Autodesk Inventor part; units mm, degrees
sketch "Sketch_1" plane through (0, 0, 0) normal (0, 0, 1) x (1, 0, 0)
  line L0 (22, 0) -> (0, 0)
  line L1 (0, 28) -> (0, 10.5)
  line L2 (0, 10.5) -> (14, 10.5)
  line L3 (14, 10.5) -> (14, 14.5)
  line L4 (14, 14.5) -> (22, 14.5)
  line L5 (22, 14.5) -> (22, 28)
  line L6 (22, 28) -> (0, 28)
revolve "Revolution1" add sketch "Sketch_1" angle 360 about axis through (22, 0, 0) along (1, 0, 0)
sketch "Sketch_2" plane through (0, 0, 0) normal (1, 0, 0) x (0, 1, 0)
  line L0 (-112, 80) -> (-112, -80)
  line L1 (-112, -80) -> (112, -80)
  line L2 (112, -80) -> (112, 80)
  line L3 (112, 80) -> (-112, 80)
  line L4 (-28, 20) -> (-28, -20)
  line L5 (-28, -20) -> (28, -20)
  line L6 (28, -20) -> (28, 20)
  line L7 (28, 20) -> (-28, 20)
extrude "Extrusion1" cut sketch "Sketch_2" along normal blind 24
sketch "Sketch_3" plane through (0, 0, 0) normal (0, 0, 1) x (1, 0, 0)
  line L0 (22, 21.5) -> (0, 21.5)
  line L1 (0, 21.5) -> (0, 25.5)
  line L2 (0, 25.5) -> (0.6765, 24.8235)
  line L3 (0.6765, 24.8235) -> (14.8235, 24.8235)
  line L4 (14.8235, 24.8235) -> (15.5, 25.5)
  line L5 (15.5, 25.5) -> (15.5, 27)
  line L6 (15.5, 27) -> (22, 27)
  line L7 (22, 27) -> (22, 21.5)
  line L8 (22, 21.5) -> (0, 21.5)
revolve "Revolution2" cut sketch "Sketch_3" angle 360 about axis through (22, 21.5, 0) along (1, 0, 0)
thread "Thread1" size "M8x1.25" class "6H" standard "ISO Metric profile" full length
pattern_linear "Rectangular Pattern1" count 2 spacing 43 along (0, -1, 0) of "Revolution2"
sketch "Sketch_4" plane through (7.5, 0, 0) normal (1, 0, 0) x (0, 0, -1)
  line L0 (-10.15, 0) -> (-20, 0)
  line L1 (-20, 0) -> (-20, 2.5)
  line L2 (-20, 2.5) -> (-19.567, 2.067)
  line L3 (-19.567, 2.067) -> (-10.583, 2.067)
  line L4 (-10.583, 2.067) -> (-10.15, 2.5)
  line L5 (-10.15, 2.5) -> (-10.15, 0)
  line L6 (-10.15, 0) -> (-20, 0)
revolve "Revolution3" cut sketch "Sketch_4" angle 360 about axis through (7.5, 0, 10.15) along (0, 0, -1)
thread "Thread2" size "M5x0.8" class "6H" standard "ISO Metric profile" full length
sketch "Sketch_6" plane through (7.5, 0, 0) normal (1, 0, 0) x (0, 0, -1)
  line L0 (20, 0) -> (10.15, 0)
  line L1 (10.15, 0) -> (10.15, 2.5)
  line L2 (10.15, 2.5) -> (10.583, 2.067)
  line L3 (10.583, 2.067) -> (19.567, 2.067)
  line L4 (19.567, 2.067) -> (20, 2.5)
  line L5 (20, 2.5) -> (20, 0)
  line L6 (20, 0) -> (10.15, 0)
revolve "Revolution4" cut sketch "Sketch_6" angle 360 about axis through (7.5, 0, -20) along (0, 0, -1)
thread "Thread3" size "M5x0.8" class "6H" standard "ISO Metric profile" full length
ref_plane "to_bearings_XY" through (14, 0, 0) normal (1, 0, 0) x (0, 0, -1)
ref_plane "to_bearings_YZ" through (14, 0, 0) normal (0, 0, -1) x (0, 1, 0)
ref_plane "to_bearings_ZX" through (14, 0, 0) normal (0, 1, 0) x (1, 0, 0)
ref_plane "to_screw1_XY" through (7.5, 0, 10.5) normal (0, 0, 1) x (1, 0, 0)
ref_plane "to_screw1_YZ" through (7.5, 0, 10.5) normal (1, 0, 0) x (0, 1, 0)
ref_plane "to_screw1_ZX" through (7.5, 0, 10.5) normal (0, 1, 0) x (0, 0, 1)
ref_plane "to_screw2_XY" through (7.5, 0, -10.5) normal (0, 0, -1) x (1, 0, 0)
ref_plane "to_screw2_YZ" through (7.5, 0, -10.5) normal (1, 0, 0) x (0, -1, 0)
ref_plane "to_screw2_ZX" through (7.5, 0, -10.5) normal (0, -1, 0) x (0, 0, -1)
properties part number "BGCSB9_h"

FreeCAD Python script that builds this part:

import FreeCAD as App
import Part
import Sketcher

V = App.Vector

doc = App.newDocument("Part")
body = doc.addObject("PartDesign::Body", "Body")

# Sketch on XY plane
sketch1 = doc.addObject("Sketcher::SketchObject", "Sketch")
body.addObject(sketch1)
sketch1.AttachmentSupport = (doc.XY_Plane, [""])
sketch1.MapMode = "FlatFace"
sketch1.addGeometry(Part.LineSegment(V(22, 28, 0), V(0, 28, 0)), False)
sketch1.addGeometry(Part.LineSegment(V(0, 28, 0), V(0, 10.5, 0)), False)
sketch1.addGeometry(Part.LineSegment(V(0, 10.5, 0), V(14, 10.5, 0)), False)
sketch1.addGeometry(Part.LineSegment(V(14, 10.5, 0), V(14, 14.5, 0)), False)
sketch1.addGeometry(Part.LineSegment(V(14, 14.5, 0), V(22, 14.5, 0)), False)
sketch1.addGeometry(Part.LineSegment(V(22, 14.5, 0), V(22, 28, 0)), False)
sketch1.addConstraint(Sketcher.Constraint("Coincident", 0, 2, 1, 1))
sketch1.addConstraint(Sketcher.Constraint("Coincident", 1, 2, 2, 1))
sketch1.addConstraint(Sketcher.Constraint("Coincident", 2, 2, 3, 1))
sketch1.addConstraint(Sketcher.Constraint("Coincident", 3, 2, 4, 1))
sketch1.addConstraint(Sketcher.Constraint("Coincident", 4, 2, 5, 1))
sketch1.addConstraint(Sketcher.Constraint("Coincident", 5, 2, 0, 1))
sketch1.addConstraint(Sketcher.Constraint("Horizontal", 0))
sketch1.addConstraint(Sketcher.Constraint("Vertical", 1))
sketch1.addConstraint(Sketcher.Constraint("Horizontal", 2))
sketch1.addConstraint(Sketcher.Constraint("Vertical", 3))
sketch1.addConstraint(Sketcher.Constraint("Horizontal", 4))
sketch1.addConstraint(Sketcher.Constraint("Vertical", 5))
sketch1.addConstraint(Sketcher.Constraint("PointOnObject", 0, 2, -2))
sketch1.addConstraint(Sketcher.Constraint("DistanceX", 0, 2, 0, 1, 22.0))
sketch1.addConstraint(Sketcher.Constraint("DistanceX", 2, 1, 2, 2, 14.0))
sketch1.addConstraint(Sketcher.Constraint("DistanceY", 3, 1, 3, 2, 4.0))
sketch1.addConstraint(Sketcher.Constraint("DistanceY", 1, 2, 1, 1, 17.5))
sketch1.addConstraint(Sketcher.Constraint("DistanceY", -1, 1, 0, 2, 28.0))
revolution = doc.addObject("PartDesign::Revolution", "Revolution")
body.addObject(revolution)
revolution.Profile = sketch1
revolution.ReferenceAxis = (sketch1, ["H_Axis"])
revolution.Angle = 360

# Sketch on YZ plane
sketch2 = doc.addObject("Sketcher::SketchObject", "Sketch001")
body.addObject(sketch2)
sketch2.AttachmentSupport = (doc.YZ_Plane, [""])
sketch2.MapMode = "FlatFace"
sketch2.addGeometry(Part.LineSegment(V(112, 80, 0), V(-112, 80, 0)), False)
sketch2.addGeometry(Part.LineSegment(V(-112, 80, 0), V(-112, -80, 0)), False)
sketch2.addGeometry(Part.LineSegment(V(-112, -80, 0), V(112, -80, 0)), False)
sketch2.addGeometry(Part.LineSegment(V(112, -80, 0), V(112, 80, 0)), False)
sketch2.addGeometry(Part.LineSegment(V(-28, -20, 0), V(-28, 20, 0)), False)
sketch2.addGeometry(Part.LineSegment(V(-28, 20, 0), V(28, 20, 0)), False)
sketch2.addGeometry(Part.LineSegment(V(28, 20, 0), V(28, -20, 0)), False)
sketch2.addGeometry(Part.LineSegment(V(28, -20, 0), V(-28, -20, 0)), False)
sketch2.addConstraint(Sketcher.Constraint("Coincident", 0, 2, 1, 1))
sketch2.addConstraint(Sketcher.Constraint("Coincident", 1, 2, 2, 1))
sketch2.addConstraint(Sketcher.Constraint("Coincident", 2, 2, 3, 1))
sketch2.addConstraint(Sketcher.Constraint("Coincident", 3, 2, 0, 1))
sketch2.addConstraint(Sketcher.Constraint("Coincident", 4, 2, 5, 1))
sketch2.addConstraint(Sketcher.Constraint("Coincident", 5, 2, 6, 1))
sketch2.addConstraint(Sketcher.Constraint("Coincident", 6, 2, 7, 1))
sketch2.addConstraint(Sketcher.Constraint("Coincident", 7, 2, 4, 1))
sketch2.addConstraint(Sketcher.Constraint("Horizontal", 0))
sketch2.addConstraint(Sketcher.Constraint("Vertical", 1))
sketch2.addConstraint(Sketcher.Constraint("Horizontal", 2))
sketch2.addConstraint(Sketcher.Constraint("Vertical", 3))
sketch2.addConstraint(Sketcher.Constraint("Vertical", 4))
sketch2.addConstraint(Sketcher.Constraint("Horizontal", 5))
sketch2.addConstraint(Sketcher.Constraint("Vertical", 6))
sketch2.addConstraint(Sketcher.Constraint("Horizontal", 7))
sketch2.addConstraint(Sketcher.Constraint("Symmetric", 0, 2, 2, 2, -1, 1))
sketch2.addConstraint(Sketcher.Constraint("Symmetric", 4, 2, 6, 2, -1, 1))
sketch2.addConstraint(Sketcher.Constraint("DistanceX", 0, 2, 0, 1, 224.0))
sketch2.addConstraint(Sketcher.Constraint("DistanceX", 5, 1, 5, 2, 56.0))
sketch2.addConstraint(Sketcher.Constraint("DistanceY", 1, 2, 1, 1, 160.0))
sketch2.addConstraint(Sketcher.Constraint("DistanceY", 4, 1, 4, 2, 40.0))
pocket1 = doc.addObject("PartDesign::Pocket", "Pocket")
body.addObject(pocket1)
pocket1.Profile = sketch2
pocket1.Length = 24
pocket1.Reversed = True

# Sketch on XY plane
sketch3 = doc.addObject("Sketcher::SketchObject", "Sketch002")
body.addObject(sketch3)
sketch3.AttachmentSupport = (doc.XY_Plane, [""])
sketch3.MapMode = "FlatFace"
sketch3.addGeometry(Part.LineSegment(V(0, 21.5, 0), V(22, 21.5, 0)), False)
sketch3.addGeometry(Part.LineSegment(V(22, 21.5, 0), V(22, 27, 0)), False)
sketch3.addGeometry(Part.LineSegment(V(22, 27, 0), V(15.5, 27, 0)), False)
sketch3.addGeometry(Part.LineSegment(V(15.5, 27, 0), V(15.5, 25.5, 0)), False)
sketch3.addGeometry(Part.LineSegment(V(15.5, 25.5, 0), V(14.8, 24.8, 0)), False)
sketch3.addGeometry(Part.LineSegment(V(14.8, 24.8, 0), V(0.7, 24.8, 0)), False)
sketch3.addGeometry(Part.LineSegment(V(0.7, 24.8, 0), V(0, 25.5, 0)), False)
sketch3.addGeometry(Part.LineSegment(V(0, 25.5, 0), V(0, 21.5, 0)), False)
sketch3.addGeometry(Part.LineSegment(V(0, 21.5, 0), V(22, 21.5, 0)), True)  # axis
sketch3.addConstraint(Sketcher.Constraint("Coincident", 0, 2, 1, 1))
sketch3.addConstraint(Sketcher.Constraint("Coincident", 1, 2, 2, 1))
sketch3.addConstraint(Sketcher.Constraint("Coincident", 2, 2, 3, 1))
sketch3.addConstraint(Sketcher.Constraint("Coincident", 3, 2, 4, 1))
sketch3.addConstraint(Sketcher.Constraint("Coincident", 4, 2, 5, 1))
sketch3.addConstraint(Sketcher.Constraint("Coincident", 5, 2, 6, 1))
sketch3.addConstraint(Sketcher.Constraint("Coincident", 6, 2, 7, 1))
sketch3.addConstraint(Sketcher.Constraint("Coincident", 7, 2, 0, 1))
sketch3.addConstraint(Sketcher.Constraint("Horizontal", 0))
sketch3.addConstraint(Sketcher.Constraint("Vertical", 1))
sketch3.addConstraint(Sketcher.Constraint("Horizontal", 2))
sketch3.addConstraint(Sketcher.Constraint("Vertical", 3))
sketch3.addConstraint(Sketcher.Constraint("Horizontal", 5))
sketch3.addConstraint(Sketcher.Constraint("Vertical", 7))
sketch3.addConstraint(Sketcher.Constraint("Horizontal", 8))
sketch3.addConstraint(Sketcher.Constraint("Coincident", 8, 1, 7, 2))
sketch3.addConstraint(Sketcher.Constraint("PointOnObject", 6, 2, -2))
sketch3.addConstraint(Sketcher.Constraint("Perpendicular", 4, 6))
sketch3.addConstraint(Sketcher.Constraint("Horizontal", 3, 2, 6, 2))
sketch3.addConstraint(Sketcher.Constraint("Vertical", 1, 2, 8, 2))
sketch3.addConstraint(Sketcher.Constraint("Equal", 4, 6))
sketch3.addConstraint(Sketcher.Constraint("DistanceX", 0, 1, 0, 2, 22.0))
sketch3.addConstraint(Sketcher.Constraint("DistanceY", 7, 2, 7, 1, 4.0))
sketch3.addConstraint(Sketcher.Constraint("DistanceX", 2, 2, 2, 1, 6.5))
sketch3.addConstraint(Sketcher.Constraint("DistanceY", 1, 1, 1, 2, 5.5))
sketch3.addConstraint(Sketcher.Constraint("DistanceY", -1, 1, 1, 2, 27.0))
sketch3.addConstraint(Sketcher.Constraint("DistanceX", 5, 2, 5, 1, 14.147))
groove = doc.addObject("PartDesign::Groove", "Groove")
body.addObject(groove)
groove.Profile = sketch3
groove.ReferenceAxis = (sketch3, ["Axis0"])
groove.Angle = 360
doc.recompute()

linearpattern = doc.addObject("PartDesign::LinearPattern", "LinearPattern")
body.addObject(linearpattern)
linearpattern.Originals = [groove]
linearpattern.Direction = (doc.Y_Axis, [""])
linearpattern.Mode = "offset"
linearpattern.Offset = 43
linearpattern.Occurrences = 2
linearpattern.Reversed = True
body.Tip = linearpattern

# Sketch on YZ plane
sketch4 = doc.addObject("Sketcher::SketchObject", "Sketch003")
body.addObject(sketch4)
sketch4.AttachmentSupport = (doc.YZ_Plane, [""])
sketch4.MapMode = "FlatFace"
sketch4.AttachmentOffset = App.Placement(V(0, 0, 7.5), App.Rotation())
sketch4.addGeometry(Part.LineSegment(V(0, 20, 0), V(0, 10.2, 0)), False)
sketch4.addGeometry(Part.LineSegment(V(0, 10.2, 0), V(2.5, 10.2, 0)), False)
sketch4.addGeometry(Part.LineSegment(V(2.5, 10.2, 0), V(2.1, 10.6, 0)), False)
sketch4.addGeometry(Part.LineSegment(V(2.1, 10.6, 0), V(2.1, 19.6, 0)), False)
sketch4.addGeometry(Part.LineSegment(V(2.1, 19.6, 0), V(2.5, 20, 0)), False)
sketch4.addGeometry(Part.LineSegment(V(2.5, 20, 0), V(0, 20, 0)), False)
sketch4.addConstraint(Sketcher.Constraint("Coincident", 0, 2, 1, 1))
sketch4.addConstraint(Sketcher.Constraint("Coincident", 1, 2, 2, 1))
sketch4.addConstraint(Sketcher.Constraint("Coincident", 2, 2, 3, 1))
sketch4.addConstraint(Sketcher.Constraint("Coincident", 3, 2, 4, 1))
sketch4.addConstraint(Sketcher.Constraint("Coincident", 4, 2, 5, 1))
sketch4.addConstraint(Sketcher.Constraint("Coincident", 5, 2, 0, 1))
sketch4.addConstraint(Sketcher.Constraint("Vertical", 0))
sketch4.addConstraint(Sketcher.Constraint("Horizontal", 1))
sketch4.addConstraint(Sketcher.Constraint("Vertical", 3))
sketch4.addConstraint(Sketcher.Constraint("Horizontal", 5))
sketch4.addConstraint(Sketcher.Constraint("PointOnObject", 0, 2, -2))
sketch4.addConstraint(Sketcher.Constraint("Perpendicular", 2, 4))
sketch4.addConstraint(Sketcher.Constraint("Vertical", 1, 2, 4, 2))
sketch4.addConstraint(Sketcher.Constraint("Equal", 2, 4))
sketch4.addConstraint(Sketcher.Constraint("DistanceX", 1, 1, 1, 2, 2.5))
sketch4.addConstraint(Sketcher.Constraint("DistanceY", -1, 1, 4, 2, 20.0))
sketch4.addConstraint(Sketcher.Constraint("DistanceY", 0, 2, 0, 1, 9.85))
sketch4.addConstraint(Sketcher.Constraint("DistanceY", 3, 1, 3, 2, 8.984))
groove2 = doc.addObject("PartDesign::Groove", "Groove001")
body.addObject(groove2)
groove2.Profile = sketch4
groove2.ReferenceAxis = (sketch4, ["V_Axis"])
groove2.Angle = 360

# Sketch on YZ plane
sketch5 = doc.addObject("Sketcher::SketchObject", "Sketch004")
body.addObject(sketch5)
sketch5.AttachmentSupport = (doc.YZ_Plane, [""])
sketch5.MapMode = "FlatFace"
sketch5.AttachmentOffset = App.Placement(V(0, 0, 7.5), App.Rotation())
sketch5.addGeometry(Part.LineSegment(V(0, -10.2, 0), V(0, -20, 0)), False)
sketch5.addGeometry(Part.LineSegment(V(0, -20, 0), V(2.5, -20, 0)), False)
sketch5.addGeometry(Part.LineSegment(V(2.5, -20, 0), V(2.1, -19.6, 0)), False)
sketch5.addGeometry(Part.LineSegment(V(2.1, -19.6, 0), V(2.1, -10.6, 0)), False)
sketch5.addGeometry(Part.LineSegment(V(2.1, -10.6, 0), V(2.5, -10.2, 0)), False)
sketch5.addGeometry(Part.LineSegment(V(2.5, -10.2, 0), V(0, -10.2, 0)), False)
sketch5.addConstraint(Sketcher.Constraint("Coincident", 0, 2, 1, 1))
sketch5.addConstraint(Sketcher.Constraint("Coincident", 1, 2, 2, 1))
sketch5.addConstraint(Sketcher.Constraint("Coincident", 2, 2, 3, 1))
sketch5.addConstraint(Sketcher.Constraint("Coincident", 3, 2, 4, 1))
sketch5.addConstraint(Sketcher.Constraint("Coincident", 4, 2, 5, 1))
sketch5.addConstraint(Sketcher.Constraint("Coincident", 5, 2, 0, 1))
sketch5.addConstraint(Sketcher.Constraint("Vertical", 0))
sketch5.addConstraint(Sketcher.Constraint("Horizontal", 1))
sketch5.addConstraint(Sketcher.Constraint("Vertical", 3))
sketch5.addConstraint(Sketcher.Constraint("Horizontal", 5))
sketch5.addConstraint(Sketcher.Constraint("PointOnObject", 0, 2, -2))
sketch5.addConstraint(Sketcher.Constraint("Perpendicular", 2, 4))
sketch5.addConstraint(Sketcher.Constraint("Vertical", 1, 2, 4, 2))
sketch5.addConstraint(Sketcher.Constraint("Equal", 2, 4))
sketch5.addConstraint(Sketcher.Constraint("DistanceX", 1, 1, 1, 2, 2.5))
sketch5.addConstraint(Sketcher.Constraint("DistanceY", 0, 2, -1, 1, 20.0))
sketch5.addConstraint(Sketcher.Constraint("DistanceY", 0, 2, 0, 1, 9.85))
sketch5.addConstraint(Sketcher.Constraint("DistanceY", 3, 1, 3, 2, 8.984))
groove3 = doc.addObject("PartDesign::Groove", "Groove002")
body.addObject(groove3)
groove3.Profile = sketch5
groove3.ReferenceAxis = (sketch5, ["V_Axis"])
groove3.Angle = 360

doc.recompute()
